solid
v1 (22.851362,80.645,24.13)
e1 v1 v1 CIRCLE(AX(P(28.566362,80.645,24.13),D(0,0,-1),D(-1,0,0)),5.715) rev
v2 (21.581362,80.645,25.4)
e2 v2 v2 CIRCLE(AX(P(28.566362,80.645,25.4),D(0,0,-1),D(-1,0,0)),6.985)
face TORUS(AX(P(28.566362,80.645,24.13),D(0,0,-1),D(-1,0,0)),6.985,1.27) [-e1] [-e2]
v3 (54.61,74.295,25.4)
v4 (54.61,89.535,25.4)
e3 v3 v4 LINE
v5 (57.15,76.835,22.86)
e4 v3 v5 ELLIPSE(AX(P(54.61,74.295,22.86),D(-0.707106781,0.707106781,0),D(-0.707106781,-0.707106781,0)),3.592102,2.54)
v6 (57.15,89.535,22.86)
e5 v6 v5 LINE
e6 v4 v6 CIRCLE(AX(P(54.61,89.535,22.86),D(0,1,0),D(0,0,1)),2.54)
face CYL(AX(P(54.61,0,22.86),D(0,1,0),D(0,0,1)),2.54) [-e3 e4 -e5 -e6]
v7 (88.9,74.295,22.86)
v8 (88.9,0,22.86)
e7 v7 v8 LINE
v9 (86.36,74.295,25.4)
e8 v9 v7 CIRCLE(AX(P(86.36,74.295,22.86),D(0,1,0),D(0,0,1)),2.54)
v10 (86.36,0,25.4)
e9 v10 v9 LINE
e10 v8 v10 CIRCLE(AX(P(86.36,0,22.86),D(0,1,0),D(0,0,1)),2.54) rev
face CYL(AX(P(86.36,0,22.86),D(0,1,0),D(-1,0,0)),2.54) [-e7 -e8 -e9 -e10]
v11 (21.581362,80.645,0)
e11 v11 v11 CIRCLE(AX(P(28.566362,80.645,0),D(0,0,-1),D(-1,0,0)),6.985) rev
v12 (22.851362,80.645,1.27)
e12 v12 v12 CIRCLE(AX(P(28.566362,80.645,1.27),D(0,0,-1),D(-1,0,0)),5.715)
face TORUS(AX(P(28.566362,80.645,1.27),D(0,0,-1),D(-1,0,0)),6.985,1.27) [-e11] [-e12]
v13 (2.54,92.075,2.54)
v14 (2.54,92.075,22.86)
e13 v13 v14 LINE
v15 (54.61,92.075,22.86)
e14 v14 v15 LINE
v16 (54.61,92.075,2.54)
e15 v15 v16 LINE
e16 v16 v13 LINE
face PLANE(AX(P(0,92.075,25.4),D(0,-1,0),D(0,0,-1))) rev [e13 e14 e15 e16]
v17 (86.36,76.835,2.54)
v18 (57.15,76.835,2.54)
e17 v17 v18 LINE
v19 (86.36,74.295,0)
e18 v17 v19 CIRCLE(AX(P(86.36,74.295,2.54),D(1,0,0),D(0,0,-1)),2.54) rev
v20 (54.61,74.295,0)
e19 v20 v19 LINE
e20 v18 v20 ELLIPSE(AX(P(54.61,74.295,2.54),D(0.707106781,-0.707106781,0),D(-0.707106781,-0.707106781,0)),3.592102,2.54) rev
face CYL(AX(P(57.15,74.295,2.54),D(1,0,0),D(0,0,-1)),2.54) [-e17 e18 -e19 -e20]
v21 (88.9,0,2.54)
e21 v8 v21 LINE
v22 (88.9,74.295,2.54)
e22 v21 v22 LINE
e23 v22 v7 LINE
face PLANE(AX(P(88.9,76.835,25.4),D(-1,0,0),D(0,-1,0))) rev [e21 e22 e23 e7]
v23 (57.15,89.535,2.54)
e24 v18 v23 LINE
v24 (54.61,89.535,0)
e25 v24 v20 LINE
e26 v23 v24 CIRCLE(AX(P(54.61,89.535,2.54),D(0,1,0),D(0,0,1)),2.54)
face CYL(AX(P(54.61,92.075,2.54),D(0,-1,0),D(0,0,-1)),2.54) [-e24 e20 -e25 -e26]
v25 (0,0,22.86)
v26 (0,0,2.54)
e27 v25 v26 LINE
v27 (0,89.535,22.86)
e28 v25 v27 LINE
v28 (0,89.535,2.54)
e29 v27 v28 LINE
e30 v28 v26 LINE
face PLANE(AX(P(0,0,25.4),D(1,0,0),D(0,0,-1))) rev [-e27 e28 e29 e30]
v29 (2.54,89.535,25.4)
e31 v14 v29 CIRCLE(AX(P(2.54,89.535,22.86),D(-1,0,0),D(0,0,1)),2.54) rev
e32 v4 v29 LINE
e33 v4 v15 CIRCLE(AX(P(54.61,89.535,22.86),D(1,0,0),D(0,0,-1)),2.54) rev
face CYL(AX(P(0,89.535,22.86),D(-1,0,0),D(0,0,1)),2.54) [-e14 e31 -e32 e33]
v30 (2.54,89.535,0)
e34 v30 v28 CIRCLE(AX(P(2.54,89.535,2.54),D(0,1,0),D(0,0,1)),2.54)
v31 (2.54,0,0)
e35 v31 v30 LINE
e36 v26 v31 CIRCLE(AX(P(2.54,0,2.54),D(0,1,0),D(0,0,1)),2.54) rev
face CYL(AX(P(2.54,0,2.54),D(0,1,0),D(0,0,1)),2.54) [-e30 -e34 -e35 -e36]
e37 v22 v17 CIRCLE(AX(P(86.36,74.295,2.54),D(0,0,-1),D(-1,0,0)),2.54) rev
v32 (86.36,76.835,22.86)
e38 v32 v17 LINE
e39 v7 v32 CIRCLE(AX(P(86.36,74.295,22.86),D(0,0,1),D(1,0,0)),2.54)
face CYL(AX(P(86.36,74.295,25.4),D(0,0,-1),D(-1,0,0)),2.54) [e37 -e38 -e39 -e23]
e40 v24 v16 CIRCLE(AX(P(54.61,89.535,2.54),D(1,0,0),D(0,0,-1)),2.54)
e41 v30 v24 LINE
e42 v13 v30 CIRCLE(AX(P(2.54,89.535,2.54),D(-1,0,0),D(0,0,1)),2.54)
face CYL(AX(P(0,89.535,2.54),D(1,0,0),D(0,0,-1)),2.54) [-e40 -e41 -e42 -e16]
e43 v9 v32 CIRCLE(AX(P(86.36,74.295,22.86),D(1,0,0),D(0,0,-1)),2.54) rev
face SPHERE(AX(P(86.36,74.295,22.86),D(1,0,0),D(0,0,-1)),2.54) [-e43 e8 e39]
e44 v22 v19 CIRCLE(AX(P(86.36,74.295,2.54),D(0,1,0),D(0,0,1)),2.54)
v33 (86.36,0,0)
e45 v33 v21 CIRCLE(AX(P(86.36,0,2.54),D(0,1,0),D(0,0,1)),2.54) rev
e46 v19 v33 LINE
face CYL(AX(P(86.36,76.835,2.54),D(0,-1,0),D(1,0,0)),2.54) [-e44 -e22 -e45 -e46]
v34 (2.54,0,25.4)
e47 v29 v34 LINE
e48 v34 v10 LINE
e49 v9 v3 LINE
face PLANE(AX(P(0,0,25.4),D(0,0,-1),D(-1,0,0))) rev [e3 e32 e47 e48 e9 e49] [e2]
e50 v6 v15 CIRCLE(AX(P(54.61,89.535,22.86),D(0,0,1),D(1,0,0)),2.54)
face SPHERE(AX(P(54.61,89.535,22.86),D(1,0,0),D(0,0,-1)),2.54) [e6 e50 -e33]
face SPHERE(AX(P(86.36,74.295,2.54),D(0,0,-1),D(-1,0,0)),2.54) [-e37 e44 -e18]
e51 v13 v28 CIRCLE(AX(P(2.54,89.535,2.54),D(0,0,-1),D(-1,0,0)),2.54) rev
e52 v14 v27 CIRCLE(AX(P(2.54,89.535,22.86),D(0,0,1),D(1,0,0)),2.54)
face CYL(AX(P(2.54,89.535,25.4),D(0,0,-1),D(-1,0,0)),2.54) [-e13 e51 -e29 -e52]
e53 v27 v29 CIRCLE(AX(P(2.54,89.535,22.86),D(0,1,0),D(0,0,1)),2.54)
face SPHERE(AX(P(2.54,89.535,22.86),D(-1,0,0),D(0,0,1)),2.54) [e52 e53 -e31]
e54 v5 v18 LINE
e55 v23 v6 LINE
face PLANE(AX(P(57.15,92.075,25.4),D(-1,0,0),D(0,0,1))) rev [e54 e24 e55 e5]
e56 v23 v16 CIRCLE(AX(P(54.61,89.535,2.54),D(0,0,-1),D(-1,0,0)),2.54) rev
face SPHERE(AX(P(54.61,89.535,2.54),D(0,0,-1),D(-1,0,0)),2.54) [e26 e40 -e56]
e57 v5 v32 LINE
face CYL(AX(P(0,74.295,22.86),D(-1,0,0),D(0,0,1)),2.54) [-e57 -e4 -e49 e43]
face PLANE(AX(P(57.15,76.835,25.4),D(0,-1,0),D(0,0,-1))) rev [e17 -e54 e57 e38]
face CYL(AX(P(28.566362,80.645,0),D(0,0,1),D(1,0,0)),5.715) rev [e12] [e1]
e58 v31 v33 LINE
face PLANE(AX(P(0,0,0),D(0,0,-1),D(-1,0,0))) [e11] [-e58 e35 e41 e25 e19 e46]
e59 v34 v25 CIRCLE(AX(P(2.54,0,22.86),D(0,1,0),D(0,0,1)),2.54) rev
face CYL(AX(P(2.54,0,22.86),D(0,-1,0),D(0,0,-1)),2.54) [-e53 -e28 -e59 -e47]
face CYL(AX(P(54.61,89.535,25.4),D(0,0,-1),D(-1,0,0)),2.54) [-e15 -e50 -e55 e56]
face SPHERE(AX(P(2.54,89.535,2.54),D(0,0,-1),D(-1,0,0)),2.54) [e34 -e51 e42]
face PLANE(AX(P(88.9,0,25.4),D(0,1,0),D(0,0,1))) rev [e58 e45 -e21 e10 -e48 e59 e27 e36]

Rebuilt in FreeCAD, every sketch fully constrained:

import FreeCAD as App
import Part
import Sketcher

V = App.Vector
Q = App.Units.Quantity


def edges_at(feature, points):
    """Names of the edges that pass closest to the given points."""
    edges = feature.Shape.Edges
    near = lambda p: min(range(len(edges)), key=lambda i: edges[i].distToShape(Part.Vertex(*p))[0])
    return sorted({f"Edge{near(p) + 1}" for p in points})

doc = App.newDocument("Part")
body = doc.addObject("PartDesign::Body", "Body")

# Sketch on XY plane
sketch1 = body.newObject("Sketcher::SketchObject", "Sketch")
sketch1.AttachmentSupport = (doc.getObject("XY_Plane"), [""])
sketch1.MapMode = "FlatFace"
sketch1.addGeometry([
    Part.LineSegment(V(0, 92, 0), V(0, 0, 0)),  # 0
    Part.LineSegment(V(0, 0, 0), V(89, 0, 0)),  # 1
    Part.LineSegment(V(89, 0, 0), V(89, 77, 0)),  # 2
    Part.LineSegment(V(89, 77, 0), V(57, 77, 0)),  # 3
    Part.LineSegment(V(57, 77, 0), V(57, 92, 0)),  # 4
    Part.LineSegment(V(57, 92, 0), V(0, 92, 0)),  # 5
], False)
sketch1.addConstraint([
    Sketcher.Constraint("Coincident", 0, 2, 1, 1),
    Sketcher.Constraint("Coincident", 1, 2, 2, 1),
    Sketcher.Constraint("Coincident", 2, 2, 3, 1),
    Sketcher.Constraint("Coincident", 3, 2, 4, 1),
    Sketcher.Constraint("Coincident", 4, 2, 5, 1),
    Sketcher.Constraint("Coincident", 5, 2, 0, 1),
    Sketcher.Constraint("Vertical", 0),
    Sketcher.Constraint("Horizontal", 1),
    Sketcher.Constraint("Vertical", 2),
    Sketcher.Constraint("Horizontal", 3),
    Sketcher.Constraint("Vertical", 4),
    Sketcher.Constraint("Horizontal", 5),
    Sketcher.Constraint("Coincident", 0, 2, -1, 1),
    Sketcher.Constraint("DistanceX", 1, 1, 1, 2, Q("3.5 in")),
    Sketcher.Constraint("DistanceY", 4, 1, 4, 2, Q("0.6 in")),
    Sketcher.Constraint("DistanceX", 3, 2, 3, 1, Q("1.25 in")),
    Sketcher.Constraint("DistanceY", 0, 2, 0, 1, Q("3.625 in")),
])
pad1 = body.newObject("PartDesign::Pad", "Pad")
pad1.Profile = sketch1
pad1.Length = Q("1 in")

# Sketch on XY plane
sketch2 = body.newObject("Sketcher::SketchObject", "Sketch001")
sketch2.AttachmentSupport = (doc.getObject("XY_Plane"), [""])
sketch2.MapMode = "FlatFace"
sketch2.AttachmentOffset = App.Placement(V(0, 0, 1 * 25.4), App.Rotation())
sketch2.addGeometry(Part.Circle(V(29, 81, 0), V(0, 0, 1), 6), False)
sketch2.addConstraint([
    Sketcher.Constraint("Diameter", 0, Q("0.45 in")),
    Sketcher.Constraint("DistanceY", -1, 1, 0, 3, Q("3.175 in")),
    Sketcher.Constraint("DistanceX", -1, 1, 0, 3, Q("28.566362 mm")),
])
pocket1 = body.newObject("PartDesign::Pocket", "Pocket")
pocket1.Profile = sketch2
pocket1.Type = "ThroughAll"
doc.recompute()

fillet = body.newObject("PartDesign::Fillet", "Fillet")
fillet.Base = (pocket1, edges_at(pocket1, [
    (57.15, 84.455, 0),
    (73.025, 76.835, 0),
    (88.9, 38.417, 0),
    (73.025, 76.835, 25.4),
    (0, 92.075, 12.7),
    (57.15, 92.075, 12.7),
    (88.9, 76.835, 12.7),
    (57.15, 84.455, 25.4),
    (28.575, 92.075, 25.4),
    (0, 46.038, 25.4),
    (0, 46.038, 0),
    (88.9, 38.417, 25.4),
    (28.575, 92.075, 0),
]))
fillet.Radius = Q("0.1 in")
doc.recompute()

fillet2 = body.newObject("PartDesign::Fillet", "Fillet001")
fillet2.Base = (fillet, edges_at(fillet, [(22.851, 80.645, 0), (22.851, 80.645, 25.4)]))
fillet2.Radius = Q("0.05 in")

doc.recompute()
